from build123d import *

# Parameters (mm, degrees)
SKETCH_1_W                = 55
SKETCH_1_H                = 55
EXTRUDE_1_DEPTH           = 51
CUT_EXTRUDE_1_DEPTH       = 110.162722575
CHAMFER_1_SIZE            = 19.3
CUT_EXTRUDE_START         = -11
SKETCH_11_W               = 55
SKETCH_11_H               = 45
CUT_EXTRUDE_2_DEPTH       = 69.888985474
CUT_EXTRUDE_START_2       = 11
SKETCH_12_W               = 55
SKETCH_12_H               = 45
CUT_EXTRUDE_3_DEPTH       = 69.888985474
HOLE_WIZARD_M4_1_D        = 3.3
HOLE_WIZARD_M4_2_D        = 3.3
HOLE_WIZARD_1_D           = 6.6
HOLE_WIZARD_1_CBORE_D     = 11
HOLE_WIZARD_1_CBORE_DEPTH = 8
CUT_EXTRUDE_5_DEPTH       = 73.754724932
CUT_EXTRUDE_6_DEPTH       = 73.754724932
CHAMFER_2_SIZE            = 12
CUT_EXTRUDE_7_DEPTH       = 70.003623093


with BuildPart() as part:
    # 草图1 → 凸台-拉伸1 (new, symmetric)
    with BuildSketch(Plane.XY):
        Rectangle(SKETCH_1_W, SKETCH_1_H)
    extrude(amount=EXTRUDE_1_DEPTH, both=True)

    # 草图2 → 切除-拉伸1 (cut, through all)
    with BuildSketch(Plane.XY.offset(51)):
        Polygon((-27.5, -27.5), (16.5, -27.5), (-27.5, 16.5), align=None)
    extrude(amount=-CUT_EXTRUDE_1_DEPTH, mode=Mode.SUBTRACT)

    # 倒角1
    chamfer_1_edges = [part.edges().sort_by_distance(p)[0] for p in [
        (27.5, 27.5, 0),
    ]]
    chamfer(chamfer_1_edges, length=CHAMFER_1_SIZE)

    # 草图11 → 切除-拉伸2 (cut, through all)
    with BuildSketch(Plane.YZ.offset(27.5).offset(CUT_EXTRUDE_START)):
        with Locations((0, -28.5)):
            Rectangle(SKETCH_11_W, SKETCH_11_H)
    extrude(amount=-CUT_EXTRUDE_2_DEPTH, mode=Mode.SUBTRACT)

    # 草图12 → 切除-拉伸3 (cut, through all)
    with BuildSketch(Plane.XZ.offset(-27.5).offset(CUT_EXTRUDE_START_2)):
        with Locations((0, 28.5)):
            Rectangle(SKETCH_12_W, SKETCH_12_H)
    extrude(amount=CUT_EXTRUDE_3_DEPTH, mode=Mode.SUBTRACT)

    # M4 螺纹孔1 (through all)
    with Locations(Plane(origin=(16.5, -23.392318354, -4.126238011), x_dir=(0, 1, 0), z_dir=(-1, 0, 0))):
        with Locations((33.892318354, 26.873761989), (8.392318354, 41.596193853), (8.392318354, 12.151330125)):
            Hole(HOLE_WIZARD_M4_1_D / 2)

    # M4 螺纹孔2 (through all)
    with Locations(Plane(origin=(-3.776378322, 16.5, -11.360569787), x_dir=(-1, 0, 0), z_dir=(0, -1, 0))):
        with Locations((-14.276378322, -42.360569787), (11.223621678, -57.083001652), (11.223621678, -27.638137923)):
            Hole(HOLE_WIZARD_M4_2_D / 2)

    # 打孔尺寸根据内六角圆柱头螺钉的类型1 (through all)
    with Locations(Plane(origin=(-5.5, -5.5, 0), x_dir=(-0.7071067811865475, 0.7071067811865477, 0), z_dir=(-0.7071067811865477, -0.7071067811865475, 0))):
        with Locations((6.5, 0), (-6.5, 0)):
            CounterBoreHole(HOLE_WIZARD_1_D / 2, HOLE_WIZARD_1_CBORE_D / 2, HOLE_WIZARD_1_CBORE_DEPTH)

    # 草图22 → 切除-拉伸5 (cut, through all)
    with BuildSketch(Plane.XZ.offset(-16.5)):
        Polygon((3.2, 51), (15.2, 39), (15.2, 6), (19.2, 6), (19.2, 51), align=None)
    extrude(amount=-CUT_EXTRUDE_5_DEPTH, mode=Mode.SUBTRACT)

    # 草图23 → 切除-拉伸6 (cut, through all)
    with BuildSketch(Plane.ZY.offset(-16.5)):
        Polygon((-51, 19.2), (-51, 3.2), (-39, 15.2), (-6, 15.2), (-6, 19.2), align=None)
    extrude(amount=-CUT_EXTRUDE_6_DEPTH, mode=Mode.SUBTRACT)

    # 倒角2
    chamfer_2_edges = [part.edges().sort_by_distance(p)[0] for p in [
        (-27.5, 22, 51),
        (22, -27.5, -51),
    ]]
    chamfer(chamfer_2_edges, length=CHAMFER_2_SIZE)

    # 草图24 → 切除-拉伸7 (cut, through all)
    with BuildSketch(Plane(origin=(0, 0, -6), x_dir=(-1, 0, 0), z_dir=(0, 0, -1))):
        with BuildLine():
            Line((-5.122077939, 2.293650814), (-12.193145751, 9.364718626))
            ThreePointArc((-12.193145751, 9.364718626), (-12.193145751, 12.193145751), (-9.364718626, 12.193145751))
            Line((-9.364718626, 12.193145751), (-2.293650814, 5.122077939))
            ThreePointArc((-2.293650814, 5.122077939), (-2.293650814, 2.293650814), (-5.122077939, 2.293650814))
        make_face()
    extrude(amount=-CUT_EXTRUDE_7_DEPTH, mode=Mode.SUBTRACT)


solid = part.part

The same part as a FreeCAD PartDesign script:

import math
import FreeCAD as App
import Part
import Sketcher

V = App.Vector
Q = App.Units.Quantity


def edges_at(feature, points):
    """Names of the edges that pass closest to the given points."""
    edges = feature.Shape.Edges
    near = lambda p: min(range(len(edges)), key=lambda i: edges[i].distToShape(Part.Vertex(*p))[0])
    return sorted({f"Edge{near(p) + 1}" for p in points})


def add_polygon(sketch, points):
    """Adds a closed chain of lines whose ends are joined by coincident constraints."""
    first, n = sketch.GeometryCount, len(points)
    for a, b in zip(points, points[1:] + points[:1]):
        sketch.addGeometry(Part.LineSegment(App.Vector(*a, 0), App.Vector(*b, 0)), False)
    for i in range(n):
        sketch.addConstraint(Sketcher.Constraint("Coincident", first + i, 2, first + (i + 1) % n, 1))

doc = App.newDocument("Part")
body = doc.addObject("PartDesign::Body", "Body")

# Sketch on XY plane
sketch1 = body.newObject("Sketcher::SketchObject", "Sketch")
sketch1.AttachmentSupport = (doc.getObject("XY_Plane"), [""])
sketch1.MapMode = "FlatFace"
add_polygon(sketch1, [(-28, 28), (-28, -28), (28, -28), (28, 28)])  # lines 0-3
sketch1.addConstraint([
    Sketcher.Constraint("Vertical", 0),
    Sketcher.Constraint("Horizontal", 1),
    Sketcher.Constraint("Vertical", 2),
    Sketcher.Constraint("Horizontal", 3),
    Sketcher.Constraint("Symmetric", 0, 2, 2, 2, -1, 1),
    Sketcher.Constraint("Equal", 3, 0),
    Sketcher.Constraint("DistanceX", 1, 1, 1, 2, 55.0),
])
pad1 = body.newObject("PartDesign::Pad", "Pad")
pad1.Profile = sketch1
pad1.Length = 102
pad1.Midplane = True

# Sketch on XY plane
sketch2 = body.newObject("Sketcher::SketchObject", "Sketch001")
sketch2.AttachmentSupport = (doc.getObject("XY_Plane"), [""])
sketch2.MapMode = "FlatFace"
sketch2.AttachmentOffset = App.Placement(V(0, 0, 51), App.Rotation())
add_polygon(sketch2, [(-28, -28), (16, -28), (-28, 16)])  # lines 0-2
sketch2.addConstraint([
    Sketcher.Constraint("Horizontal", 0),
    Sketcher.Constraint("Vertical", 2),
    Sketcher.Constraint("Equal", 0, 2),
    Sketcher.Constraint("DistanceX", 0, 1, 0, 2, 44.0),
    Sketcher.Constraint("DistanceX", -1, 1, 0, 2, 16.5),
    Sketcher.Constraint("DistanceY", 0, 2, -1, 1, 27.5),
])
pocket1 = body.newObject("PartDesign::Pocket", "Pocket")
pocket1.Profile = sketch2
pocket1.Type = "ThroughAll"
doc.recompute()

chamfer = body.newObject("PartDesign::Chamfer", "Chamfer")
chamfer.Base = (pocket1, edges_at(pocket1, [(27.5, 27.5, 0)]))
chamfer.Size = 19.3

# Sketch on YZ plane
sketch3 = body.newObject("Sketcher::SketchObject", "Sketch002")
sketch3.AttachmentSupport = (doc.getObject("YZ_Plane"), [""])
sketch3.MapMode = "FlatFace"
sketch3.AttachmentOffset = App.Placement(V(0, 0, 16.5), App.Rotation())
add_polygon(sketch3, [(-28, -6), (-28, -51), (28, -51), (28, -6)])  # lines 0-3
sketch3.addConstraint([
    Sketcher.Constraint("Vertical", 0),
    Sketcher.Constraint("Horizontal", 1),
    Sketcher.Constraint("Vertical", 2),
    Sketcher.Constraint("Horizontal", 3),
    Sketcher.Constraint("DistanceX", 1, 1, 1, 2, 55.0),
    Sketcher.Constraint("DistanceY", 0, 2, 0, 1, 45.0),
    Sketcher.Constraint("DistanceY", 0, 2, -1, 1, 51.0),
    Sketcher.Constraint("DistanceX", 0, 2, -1, 1, 27.5),
])
pocket2 = body.newObject("PartDesign::Pocket", "Pocket001")
pocket2.Profile = sketch3
pocket2.Type = "ThroughAll"

# Sketch on XZ plane
sketch4 = body.newObject("Sketcher::SketchObject", "Sketch003")
sketch4.AttachmentSupport = (doc.getObject("XZ_Plane"), [""])
sketch4.MapMode = "FlatFace"
sketch4.AttachmentOffset = App.Placement(V(0, 0, -16.5), App.Rotation())
add_polygon(sketch4, [(-28, 51), (-28, 6), (28, 6), (28, 51)])  # lines 0-3
sketch4.addConstraint([
    Sketcher.Constraint("Vertical", 0),
    Sketcher.Constraint("Horizontal", 1),
    Sketcher.Constraint("Vertical", 2),
    Sketcher.Constraint("Horizontal", 3),
    Sketcher.Constraint("DistanceX", 1, 1, 1, 2, 55.0),
    Sketcher.Constraint("DistanceY", 0, 2, 0, 1, 45.0),
    Sketcher.Constraint("DistanceY", -1, 1, 0, 2, 6.0),
    Sketcher.Constraint("DistanceX", 0, 2, -1, 1, 27.5),
])
pocket3 = body.newObject("PartDesign::Pocket", "Pocket002")
pocket3.Profile = sketch4
pocket3.Type = "ThroughAll"
pocket3.Reversed = True

# Sketch on YZ plane
sketch5 = body.newObject("Sketcher::SketchObject", "Sketch004")
sketch5.AttachmentSupport = (doc.getObject("YZ_Plane"), [""])
sketch5.MapMode = "FlatFace"
sketch5.AttachmentOffset = App.Placement(V(0, 0, 16.5), App.Rotation())
sketch5.addGeometry([
    Part.Circle(V(10.5, -31, 0), V(0, 0, 1), 1.6),
    Part.Circle(V(-15, -45.7, 0), V(0, 0, 1), 1.6),
    Part.Circle(V(-15, -16.3, 0), V(0, 0, 1), 1.6),
], False)
sketch5.addConstraint([
    Sketcher.Constraint("Equal", 0, 1),
    Sketcher.Constraint("Equal", 1, 2),
    Sketcher.Constraint("Vertical", 1, 3, 2, 3),
    Sketcher.Constraint("Diameter", 0, 3.3),
    Sketcher.Constraint("DistanceY", 0, 3, -1, 1, 31.0),
    Sketcher.Constraint("DistanceX", 1, 3, -1, 1, 15.0),
    Sketcher.Constraint("DistanceX", -1, 1, 0, 3, 10.5),
    Sketcher.Constraint("DistanceY", 1, 3, -1, 1, 45.722432),
    Sketcher.Constraint("DistanceY", 2, 3, -1, 1, 16.277568),
])
doc.recompute()
hole = body.newObject("PartDesign::Hole", "Hole")
hole.Profile = sketch5
hole.ThreadType = "None"
hole.Diameter = 3.3
hole.DepthType = "ThroughAll"
hole.Reversed = True

# Sketch on XZ plane
sketch6 = body.newObject("Sketcher::SketchObject", "Sketch005")
sketch6.AttachmentSupport = (doc.getObject("XZ_Plane"), [""])
sketch6.MapMode = "FlatFace"
sketch6.AttachmentOffset = App.Placement(V(0, 0, -16.5), App.Rotation())
sketch6.addGeometry([
    Part.Circle(V(10.5, 31, 0), V(0, 0, 1), 1.6),
    Part.Circle(V(-15, 45.7, 0), V(0, 0, 1), 1.6),
    Part.Circle(V(-15, 16.3, 0), V(0, 0, 1), 1.6),
], False)
sketch6.addConstraint([
    Sketcher.Constraint("Equal", 0, 1),
    Sketcher.Constraint("Equal", 1, 2),
    Sketcher.Constraint("Vertical", 1, 3, 2, 3),
    Sketcher.Constraint("Diameter", 0, 3.3),
    Sketcher.Constraint("DistanceY", -1, 1, 0, 3, 31.0),
    Sketcher.Constraint("DistanceX", 1, 3, -1, 1, 15.0),
    Sketcher.Constraint("DistanceX", -1, 1, 0, 3, 10.5),
    Sketcher.Constraint("DistanceY", -1, 1, 1, 3, 45.722432),
    Sketcher.Constraint("DistanceY", -1, 1, 2, 3, 16.277568),
])
doc.recompute()
hole2 = body.newObject("PartDesign::Hole", "Hole001")
hole2.Profile = sketch6
hole2.ThreadType = "None"
hole2.Diameter = 3.3
hole2.DepthType = "ThroughAll"

# Sketch on an angled plane
sketch7 = body.newObject("Sketcher::SketchObject", "Sketch006")
sketch7.Placement = App.Placement(V(-5.5, -5.5, 0), App.Rotation(V(-0.707106781, 0.707106781, 0), V(0, 0, -0.999999999), V(-0.707106781, -0.707106781, 0), "ZXY"))
sketch7.addGeometry([
    Part.Circle(V(6.5, 0, 0), V(0, 0, 1), 3.3),
    Part.Circle(V(-6.5, 0, 0), V(0, 0, 1), 3.3),
], False)
sketch7.addConstraint([
    Sketcher.Constraint("Equal", 0, 1),
    Sketcher.Constraint("Symmetric", 0, 3, 1, 3, -1, 1),
    Sketcher.Constraint("PointOnObject", 0, 3, -1),
    Sketcher.Constraint("Diameter", 0, 6.6),
    Sketcher.Constraint("DistanceX", 1, 3, 0, 3, 13.0),
])
doc.recompute()
hole3 = body.newObject("PartDesign::Hole", "Hole002")
hole3.Profile = sketch7
hole3.ThreadType = "None"
hole3.Diameter = 6.6
hole3.DepthType = "ThroughAll"
hole3.HoleCutType = "Counterbore"
hole3.HoleCutDiameter = 11
hole3.HoleCutDepth = 8

# Sketch on XZ plane
sketch8 = body.newObject("Sketcher::SketchObject", "Sketch007")
sketch8.AttachmentSupport = (doc.getObject("XZ_Plane"), [""])
sketch8.MapMode = "FlatFace"
sketch8.AttachmentOffset = App.Placement(V(0, 0, -16.5), App.Rotation())
add_polygon(sketch8, [(3.2, 51), (15.2, 39), (15.2, 6), (19.2, 6), (19.2, 51)])  # lines 0-4
sketch8.addConstraint([
    Sketcher.Constraint("Vertical", 1),
    Sketcher.Constraint("Horizontal", 2),
    Sketcher.Constraint("Vertical", 3),
    Sketcher.Constraint("Horizontal", 4),
    Sketcher.Constraint("DistanceX", 2, 1, 2, 2, 4.0),
    Sketcher.Constraint("DistanceX", 4, 2, 4, 1, 16.0),
    Sketcher.Constraint("DistanceY", 1, 2, 1, 1, 33.0),
    Sketcher.Constraint("DistanceY", 3, 1, 3, 2, 45.0),
    Sketcher.Constraint("DistanceY", -1, 1, 0, 2, 39.0),
    Sketcher.Constraint("DistanceX", -1, 1, 0, 2, 15.2),
])
pocket4 = body.newObject("PartDesign::Pocket", "Pocket003")
pocket4.Profile = sketch8
pocket4.Type = "ThroughAll"

# Sketch on YZ plane
sketch9 = body.newObject("Sketcher::SketchObject", "Sketch008")
sketch9.AttachmentSupport = (doc.getObject("YZ_Plane"), [""])
sketch9.MapMode = "FlatFace"
sketch9.AttachmentOffset = App.Placement(V(0, 0, 16.5), App.Rotation())
add_polygon(sketch9, [(19.2, -51), (3.2, -51), (15.2, -39), (15.2, -6), (19.2, -6)])  # lines 0-4
sketch9.addConstraint([
    Sketcher.Constraint("Horizontal", 0),
    Sketcher.Constraint("Vertical", 2),
    Sketcher.Constraint("Horizontal", 3),
    Sketcher.Constraint("Vertical", 4),
    Sketcher.Constraint("DistanceX", 0, 2, 0, 1, 16.0),
    Sketcher.Constraint("DistanceX", 3, 1, 3, 2, 4.0),
    Sketcher.Constraint("DistanceY", 2, 1, 2, 2, 33.0),
    Sketcher.Constraint("DistanceY", 4, 2, 4, 1, 45.0),
    Sketcher.Constraint("DistanceY", 0, 2, -1, 1, 51.0),
    Sketcher.Constraint("DistanceX", -1, 1, 0, 2, 3.2),
])
pocket5 = body.newObject("PartDesign::Pocket", "Pocket004")
pocket5.Profile = sketch9
pocket5.Type = "ThroughAll"
pocket5.Reversed = True
doc.recompute()

chamfer2 = body.newObject("PartDesign::Chamfer", "Chamfer001")
chamfer2.Base = (pocket5, edges_at(pocket5, [(-27.5, 22, 51), (22, -27.5, -51)]))
chamfer2.Size = 12

# Sketch on XY plane
sketch10 = body.newObject("Sketcher::SketchObject", "Sketch009")
sketch10.AttachmentSupport = (doc.getObject("XY_Plane"), [""])
sketch10.MapMode = "FlatFace"
sketch10.AttachmentOffset = App.Placement(V(0, 0, -6), App.Rotation())
sketch10.addGeometry([
    Part.LineSegment(V(12.2, 9.4, 0), V(5.1, 2.3, 0)),
    Part.ArcOfCircle(Part.Circle(V(3.7, 3.7, 0), V(0, 0, 1), 2), math.radians(135), math.radians(315)),
    Part.LineSegment(V(2.3, 5.1, 0), V(9.4, 12.2, 0)),
    Part.ArcOfCircle(Part.Circle(V(10.8, 10.8, 0), V(0, 0, 1), 2), math.radians(-45), math.radians(135)),
], False)
sketch10.addConstraint([
    Sketcher.Constraint("Tangent", 0, 2, 1, 2),
    Sketcher.Constraint("Tangent", 1, 1, 2, 1),
    Sketcher.Constraint("Tangent", 2, 2, 3, 2),
    Sketcher.Constraint("Tangent", 3, 1, 0, 1),
    Sketcher.Constraint("Equal", 1, 3),
    Sketcher.Constraint("Radius", 1, 2.0),
    Sketcher.Constraint("Angle", 0, Q("-135 deg")),
    Sketcher.Constraint("Distance", 0, 10.0),
    Sketcher.Constraint("DistanceY", -1, 1, 0, 2, 2.293651),
    Sketcher.Constraint("DistanceX", -1, 1, 1, 1, 2.293651),
])
pocket6 = body.newObject("PartDesign::Pocket", "Pocket005")
pocket6.Profile = sketch10
pocket6.Type = "ThroughAll"
pocket6.Reversed = True

doc.recompute()
